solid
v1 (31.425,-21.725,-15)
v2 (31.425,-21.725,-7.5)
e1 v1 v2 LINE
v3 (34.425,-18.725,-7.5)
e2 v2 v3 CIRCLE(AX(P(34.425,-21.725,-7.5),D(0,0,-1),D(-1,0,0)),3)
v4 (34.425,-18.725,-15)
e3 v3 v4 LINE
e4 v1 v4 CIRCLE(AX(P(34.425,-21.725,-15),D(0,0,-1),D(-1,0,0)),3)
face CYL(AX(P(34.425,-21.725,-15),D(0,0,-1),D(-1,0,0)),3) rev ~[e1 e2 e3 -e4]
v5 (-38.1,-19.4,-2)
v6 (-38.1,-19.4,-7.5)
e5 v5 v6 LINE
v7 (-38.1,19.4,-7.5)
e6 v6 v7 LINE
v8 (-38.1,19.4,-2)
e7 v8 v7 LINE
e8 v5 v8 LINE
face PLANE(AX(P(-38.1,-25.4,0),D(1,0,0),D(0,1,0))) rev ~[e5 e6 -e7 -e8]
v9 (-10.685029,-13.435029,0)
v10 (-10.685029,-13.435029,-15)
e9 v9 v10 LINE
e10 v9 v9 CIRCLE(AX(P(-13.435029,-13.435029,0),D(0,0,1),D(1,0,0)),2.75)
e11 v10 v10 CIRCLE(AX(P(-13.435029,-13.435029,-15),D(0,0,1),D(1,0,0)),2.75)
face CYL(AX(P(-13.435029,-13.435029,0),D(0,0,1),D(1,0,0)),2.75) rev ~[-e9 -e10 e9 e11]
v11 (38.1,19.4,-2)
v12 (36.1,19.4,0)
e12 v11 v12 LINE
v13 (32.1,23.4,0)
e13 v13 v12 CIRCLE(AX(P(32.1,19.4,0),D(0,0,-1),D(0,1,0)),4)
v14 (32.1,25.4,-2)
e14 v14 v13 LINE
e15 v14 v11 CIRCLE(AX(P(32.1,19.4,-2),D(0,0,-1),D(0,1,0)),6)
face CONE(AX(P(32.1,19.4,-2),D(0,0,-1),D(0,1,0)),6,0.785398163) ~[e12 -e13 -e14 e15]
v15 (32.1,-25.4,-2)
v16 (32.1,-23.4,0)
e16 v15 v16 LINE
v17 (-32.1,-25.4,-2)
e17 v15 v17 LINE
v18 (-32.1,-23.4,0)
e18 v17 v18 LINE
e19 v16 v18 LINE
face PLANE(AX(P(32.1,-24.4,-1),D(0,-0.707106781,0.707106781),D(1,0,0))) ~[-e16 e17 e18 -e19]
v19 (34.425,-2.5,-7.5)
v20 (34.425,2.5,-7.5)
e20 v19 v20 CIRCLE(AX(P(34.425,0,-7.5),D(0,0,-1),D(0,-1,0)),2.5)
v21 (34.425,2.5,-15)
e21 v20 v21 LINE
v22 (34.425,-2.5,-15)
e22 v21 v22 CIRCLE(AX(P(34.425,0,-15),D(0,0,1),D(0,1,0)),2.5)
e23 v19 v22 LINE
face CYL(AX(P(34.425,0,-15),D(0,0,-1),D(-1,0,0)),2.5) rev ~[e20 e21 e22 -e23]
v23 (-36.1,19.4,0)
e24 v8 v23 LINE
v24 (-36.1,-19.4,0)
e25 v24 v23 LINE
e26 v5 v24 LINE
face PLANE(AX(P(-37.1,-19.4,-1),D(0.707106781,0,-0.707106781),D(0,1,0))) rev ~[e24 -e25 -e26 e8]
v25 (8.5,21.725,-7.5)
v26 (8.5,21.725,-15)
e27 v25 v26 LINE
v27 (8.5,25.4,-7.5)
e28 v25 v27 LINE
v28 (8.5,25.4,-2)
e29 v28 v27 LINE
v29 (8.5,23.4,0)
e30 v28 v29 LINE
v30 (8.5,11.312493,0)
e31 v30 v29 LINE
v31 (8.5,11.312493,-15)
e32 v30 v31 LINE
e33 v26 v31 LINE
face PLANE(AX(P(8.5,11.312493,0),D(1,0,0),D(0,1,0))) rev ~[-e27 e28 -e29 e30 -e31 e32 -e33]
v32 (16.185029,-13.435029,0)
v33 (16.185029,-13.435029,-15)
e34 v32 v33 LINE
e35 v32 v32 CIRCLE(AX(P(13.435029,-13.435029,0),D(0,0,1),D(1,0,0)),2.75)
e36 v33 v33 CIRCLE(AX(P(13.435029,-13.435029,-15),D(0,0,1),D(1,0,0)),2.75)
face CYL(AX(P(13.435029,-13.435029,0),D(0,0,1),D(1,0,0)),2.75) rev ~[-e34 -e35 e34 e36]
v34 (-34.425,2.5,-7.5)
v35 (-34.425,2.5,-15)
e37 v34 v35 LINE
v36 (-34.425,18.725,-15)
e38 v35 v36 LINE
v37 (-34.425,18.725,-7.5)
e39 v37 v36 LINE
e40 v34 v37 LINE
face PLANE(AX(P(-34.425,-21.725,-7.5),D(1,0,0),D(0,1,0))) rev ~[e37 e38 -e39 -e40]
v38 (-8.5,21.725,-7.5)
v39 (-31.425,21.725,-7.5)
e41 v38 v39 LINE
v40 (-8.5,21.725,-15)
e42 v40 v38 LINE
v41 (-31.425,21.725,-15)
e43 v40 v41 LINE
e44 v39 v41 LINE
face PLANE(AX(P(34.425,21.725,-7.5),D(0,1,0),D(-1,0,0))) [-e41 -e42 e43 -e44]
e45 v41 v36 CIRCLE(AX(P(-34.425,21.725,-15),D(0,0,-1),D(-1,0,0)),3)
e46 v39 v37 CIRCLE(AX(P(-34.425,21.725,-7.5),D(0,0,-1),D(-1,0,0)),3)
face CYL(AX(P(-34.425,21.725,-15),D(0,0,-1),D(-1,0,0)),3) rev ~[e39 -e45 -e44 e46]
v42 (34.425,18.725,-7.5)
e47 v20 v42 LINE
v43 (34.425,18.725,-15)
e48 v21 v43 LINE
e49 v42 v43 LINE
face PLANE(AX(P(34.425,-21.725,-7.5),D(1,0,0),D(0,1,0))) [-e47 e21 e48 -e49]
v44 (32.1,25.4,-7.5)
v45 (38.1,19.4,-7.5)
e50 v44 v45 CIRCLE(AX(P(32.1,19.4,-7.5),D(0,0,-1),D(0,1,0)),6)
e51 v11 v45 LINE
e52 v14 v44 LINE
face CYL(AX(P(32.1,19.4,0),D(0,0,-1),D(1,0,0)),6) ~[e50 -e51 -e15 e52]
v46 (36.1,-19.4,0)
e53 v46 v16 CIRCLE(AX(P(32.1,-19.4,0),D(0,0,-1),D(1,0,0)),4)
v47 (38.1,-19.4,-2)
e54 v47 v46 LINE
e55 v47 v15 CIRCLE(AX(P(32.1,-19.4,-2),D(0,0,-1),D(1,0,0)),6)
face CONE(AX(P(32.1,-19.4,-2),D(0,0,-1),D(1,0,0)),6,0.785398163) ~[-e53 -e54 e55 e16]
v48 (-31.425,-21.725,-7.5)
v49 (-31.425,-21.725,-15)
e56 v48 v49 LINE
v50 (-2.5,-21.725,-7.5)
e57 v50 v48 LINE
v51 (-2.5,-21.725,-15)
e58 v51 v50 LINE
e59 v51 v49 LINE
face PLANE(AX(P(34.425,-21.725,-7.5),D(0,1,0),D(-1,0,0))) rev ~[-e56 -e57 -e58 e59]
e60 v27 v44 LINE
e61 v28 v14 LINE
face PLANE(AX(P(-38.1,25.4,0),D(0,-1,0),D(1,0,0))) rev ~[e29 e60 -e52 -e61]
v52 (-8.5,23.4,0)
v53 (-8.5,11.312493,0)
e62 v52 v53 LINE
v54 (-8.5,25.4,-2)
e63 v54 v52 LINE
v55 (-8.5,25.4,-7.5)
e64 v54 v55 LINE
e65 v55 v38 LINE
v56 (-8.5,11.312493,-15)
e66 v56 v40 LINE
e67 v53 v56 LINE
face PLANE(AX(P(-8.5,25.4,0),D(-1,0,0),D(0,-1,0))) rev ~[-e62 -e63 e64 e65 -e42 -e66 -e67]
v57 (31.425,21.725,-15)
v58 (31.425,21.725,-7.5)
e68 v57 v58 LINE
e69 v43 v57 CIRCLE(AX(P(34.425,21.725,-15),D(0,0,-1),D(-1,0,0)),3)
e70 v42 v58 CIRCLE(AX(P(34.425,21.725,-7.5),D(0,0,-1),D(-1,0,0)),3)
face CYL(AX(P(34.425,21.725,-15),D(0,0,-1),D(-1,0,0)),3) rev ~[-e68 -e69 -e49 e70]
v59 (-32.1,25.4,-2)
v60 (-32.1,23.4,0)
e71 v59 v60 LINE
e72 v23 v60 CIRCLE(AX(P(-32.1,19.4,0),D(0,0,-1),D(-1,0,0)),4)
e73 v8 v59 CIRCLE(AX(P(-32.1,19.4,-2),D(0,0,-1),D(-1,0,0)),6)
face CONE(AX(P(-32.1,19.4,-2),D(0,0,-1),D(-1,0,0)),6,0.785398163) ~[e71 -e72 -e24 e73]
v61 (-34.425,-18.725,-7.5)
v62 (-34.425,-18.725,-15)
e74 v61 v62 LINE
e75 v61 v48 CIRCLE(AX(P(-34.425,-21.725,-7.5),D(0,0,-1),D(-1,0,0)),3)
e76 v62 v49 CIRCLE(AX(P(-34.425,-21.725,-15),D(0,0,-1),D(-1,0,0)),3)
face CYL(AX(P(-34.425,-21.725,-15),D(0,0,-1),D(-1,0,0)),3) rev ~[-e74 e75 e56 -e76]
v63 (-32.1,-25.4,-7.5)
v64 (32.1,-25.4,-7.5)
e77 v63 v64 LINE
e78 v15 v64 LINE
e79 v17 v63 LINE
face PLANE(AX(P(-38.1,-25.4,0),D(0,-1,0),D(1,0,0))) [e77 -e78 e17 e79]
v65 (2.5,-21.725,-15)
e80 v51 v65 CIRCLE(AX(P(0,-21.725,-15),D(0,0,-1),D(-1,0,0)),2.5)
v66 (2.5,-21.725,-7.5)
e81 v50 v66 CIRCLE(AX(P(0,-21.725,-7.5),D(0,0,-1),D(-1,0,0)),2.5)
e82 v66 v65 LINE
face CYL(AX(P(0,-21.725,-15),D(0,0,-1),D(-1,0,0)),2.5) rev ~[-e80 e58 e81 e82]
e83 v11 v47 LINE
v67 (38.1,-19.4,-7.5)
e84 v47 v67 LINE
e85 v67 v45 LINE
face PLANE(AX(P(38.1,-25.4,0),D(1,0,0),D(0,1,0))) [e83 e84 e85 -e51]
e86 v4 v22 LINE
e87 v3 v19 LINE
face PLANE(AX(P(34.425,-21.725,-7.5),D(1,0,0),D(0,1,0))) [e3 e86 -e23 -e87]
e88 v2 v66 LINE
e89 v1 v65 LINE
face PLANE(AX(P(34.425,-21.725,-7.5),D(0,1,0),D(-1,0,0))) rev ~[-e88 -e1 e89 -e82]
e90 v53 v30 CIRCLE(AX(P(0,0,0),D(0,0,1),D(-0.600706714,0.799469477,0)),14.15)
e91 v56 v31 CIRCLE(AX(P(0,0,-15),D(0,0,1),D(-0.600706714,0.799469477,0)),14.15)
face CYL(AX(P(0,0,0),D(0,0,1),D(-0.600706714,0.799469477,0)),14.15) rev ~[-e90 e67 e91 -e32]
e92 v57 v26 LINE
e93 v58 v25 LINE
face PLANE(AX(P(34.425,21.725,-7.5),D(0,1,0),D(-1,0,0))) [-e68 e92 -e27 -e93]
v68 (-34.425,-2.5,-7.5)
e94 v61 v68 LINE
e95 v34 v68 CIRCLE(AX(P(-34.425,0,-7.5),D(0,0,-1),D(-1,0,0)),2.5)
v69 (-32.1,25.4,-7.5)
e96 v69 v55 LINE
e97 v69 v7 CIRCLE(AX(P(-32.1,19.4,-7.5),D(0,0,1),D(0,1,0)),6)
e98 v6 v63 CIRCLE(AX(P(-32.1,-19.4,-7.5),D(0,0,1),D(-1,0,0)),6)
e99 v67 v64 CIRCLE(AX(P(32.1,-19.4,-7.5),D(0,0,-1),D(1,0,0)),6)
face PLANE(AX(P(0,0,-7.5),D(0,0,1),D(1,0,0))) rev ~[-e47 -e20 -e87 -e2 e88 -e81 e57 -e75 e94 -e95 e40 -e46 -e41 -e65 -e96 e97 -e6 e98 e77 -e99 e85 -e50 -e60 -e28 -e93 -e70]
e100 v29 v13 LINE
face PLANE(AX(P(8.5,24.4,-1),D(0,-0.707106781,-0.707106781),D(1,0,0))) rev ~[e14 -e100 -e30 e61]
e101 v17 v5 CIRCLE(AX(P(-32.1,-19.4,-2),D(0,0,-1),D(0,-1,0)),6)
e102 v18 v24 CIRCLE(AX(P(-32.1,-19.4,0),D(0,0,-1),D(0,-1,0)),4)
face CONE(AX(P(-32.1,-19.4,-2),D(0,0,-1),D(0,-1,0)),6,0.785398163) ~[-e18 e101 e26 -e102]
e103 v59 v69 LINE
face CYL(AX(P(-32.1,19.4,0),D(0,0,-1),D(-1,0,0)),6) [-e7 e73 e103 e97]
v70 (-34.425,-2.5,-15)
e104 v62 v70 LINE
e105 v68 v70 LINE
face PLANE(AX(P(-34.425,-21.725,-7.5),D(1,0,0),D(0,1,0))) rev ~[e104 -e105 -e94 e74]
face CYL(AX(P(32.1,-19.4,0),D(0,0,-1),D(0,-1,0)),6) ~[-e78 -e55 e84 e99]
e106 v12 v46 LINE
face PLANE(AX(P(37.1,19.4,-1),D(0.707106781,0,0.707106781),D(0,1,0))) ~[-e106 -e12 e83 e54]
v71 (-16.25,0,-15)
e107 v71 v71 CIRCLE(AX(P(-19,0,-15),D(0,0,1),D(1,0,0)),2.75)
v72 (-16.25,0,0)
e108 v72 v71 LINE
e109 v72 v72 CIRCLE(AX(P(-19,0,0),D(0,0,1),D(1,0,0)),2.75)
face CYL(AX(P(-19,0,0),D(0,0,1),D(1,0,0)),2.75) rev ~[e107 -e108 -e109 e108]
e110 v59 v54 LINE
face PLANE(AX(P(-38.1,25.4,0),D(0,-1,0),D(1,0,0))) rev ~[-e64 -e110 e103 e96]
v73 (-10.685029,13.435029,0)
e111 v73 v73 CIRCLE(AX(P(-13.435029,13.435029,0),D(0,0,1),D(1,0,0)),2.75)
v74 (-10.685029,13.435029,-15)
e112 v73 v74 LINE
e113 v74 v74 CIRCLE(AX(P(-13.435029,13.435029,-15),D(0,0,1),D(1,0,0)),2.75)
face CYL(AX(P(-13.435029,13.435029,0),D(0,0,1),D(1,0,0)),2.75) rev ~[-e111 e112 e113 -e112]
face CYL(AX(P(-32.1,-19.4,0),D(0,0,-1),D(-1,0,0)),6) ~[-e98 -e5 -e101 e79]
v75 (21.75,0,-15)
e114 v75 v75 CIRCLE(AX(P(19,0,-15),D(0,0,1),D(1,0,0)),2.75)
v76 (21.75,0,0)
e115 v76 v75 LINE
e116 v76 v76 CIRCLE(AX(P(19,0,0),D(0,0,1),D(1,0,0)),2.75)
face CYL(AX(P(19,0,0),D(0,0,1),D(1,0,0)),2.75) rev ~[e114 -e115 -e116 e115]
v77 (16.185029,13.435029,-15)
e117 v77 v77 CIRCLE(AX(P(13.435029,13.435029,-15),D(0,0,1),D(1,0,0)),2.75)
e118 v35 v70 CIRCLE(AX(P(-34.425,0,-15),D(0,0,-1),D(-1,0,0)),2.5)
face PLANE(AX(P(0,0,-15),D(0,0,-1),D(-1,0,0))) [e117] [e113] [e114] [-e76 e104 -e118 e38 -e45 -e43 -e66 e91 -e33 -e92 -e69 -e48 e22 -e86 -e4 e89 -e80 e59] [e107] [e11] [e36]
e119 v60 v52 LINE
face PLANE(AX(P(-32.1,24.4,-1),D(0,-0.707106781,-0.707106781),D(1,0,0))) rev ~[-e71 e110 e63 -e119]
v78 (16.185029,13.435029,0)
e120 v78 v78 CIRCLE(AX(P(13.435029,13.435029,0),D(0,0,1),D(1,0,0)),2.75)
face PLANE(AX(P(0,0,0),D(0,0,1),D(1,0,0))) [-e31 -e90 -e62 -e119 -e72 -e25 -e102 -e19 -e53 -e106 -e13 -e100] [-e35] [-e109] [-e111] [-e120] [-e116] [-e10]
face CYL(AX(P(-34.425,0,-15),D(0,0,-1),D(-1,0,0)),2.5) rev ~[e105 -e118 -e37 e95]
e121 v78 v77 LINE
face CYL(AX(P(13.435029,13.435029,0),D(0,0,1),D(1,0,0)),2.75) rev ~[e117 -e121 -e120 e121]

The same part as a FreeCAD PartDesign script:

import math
import FreeCAD as App
import Part
import Sketcher

V = App.Vector


def edges_at(feature, points):
    """Names of the edges that pass closest to the given points."""
    edges = feature.Shape.Edges
    near = lambda p: min(range(len(edges)), key=lambda i: edges[i].distToShape(Part.Vertex(*p))[0])
    return sorted({f"Edge{near(p) + 1}" for p in points})


def add_polygon(sketch, points):
    """Adds a closed chain of lines whose ends are joined by coincident constraints."""
    first, n = sketch.GeometryCount, len(points)
    for a, b in zip(points, points[1:] + points[:1]):
        sketch.addGeometry(Part.LineSegment(App.Vector(*a, 0), App.Vector(*b, 0)), False)
    for i in range(n):
        sketch.addConstraint(Sketcher.Constraint("Coincident", first + i, 2, first + (i + 1) % n, 1))

doc = App.newDocument("Part")
params = doc.addObject("Spreadsheet::Sheet", "Params")
for row, (alias, value) in enumerate([
    ("sketch1_width", "76.2 mm"),
    ("sketch1_height", "50.8 mm"),
    ("pad1_length", "7.5 mm"),
    ("sketch2_width", "68.85 mm"),
    ("sketch2_height", "43.45 mm"),
    ("pad2_length", "7.5 mm"),
    ("sketch3_diameter", "5.5 mm"),
    ("sketch3_width", "17 mm"),
    ("sketch3_radius", "14.15 mm"),
    ("fillet_radius", "6 mm"),
    ("sketch4_diameter", "6 mm"),
    ("sketch4_diameter2", "5 mm"),
    ("pocket2_length", "7.5 mm"),
    ("chamfer_size", "2 mm"),
], start=1):
    params.set(f"A{row}", alias)
    params.set(f"B{row}", "=" + value)
    params.setAlias(f"B{row}", alias)

body = doc.addObject("PartDesign::Body", "Body")

# Sketch on XY plane
sketch1 = body.newObject("Sketcher::SketchObject", "Sketch")
sketch1.AttachmentSupport = (doc.getObject("XY_Plane"), [""])
sketch1.MapMode = "FlatFace"
add_polygon(sketch1, [(-38, 25), (-38, -25), (38, -25), (38, 25)])  # lines 0-3
sketch1.addConstraint([
    Sketcher.Constraint("Vertical", 0),
    Sketcher.Constraint("Horizontal", 1),
    Sketcher.Constraint("Vertical", 2),
    Sketcher.Constraint("Horizontal", 3),
    Sketcher.Constraint("Symmetric", 0, 2, 2, 2, -1, 1),
    Sketcher.Constraint("DistanceX", 1, 1, 1, 2, 76.2),
    Sketcher.Constraint("DistanceY", 0, 2, 0, 1, 50.8),
])
sketch1.setExpression("Constraints[9]", "Params.sketch1_width")
sketch1.setExpression("Constraints[10]", "Params.sketch1_height")
pad1 = body.newObject("PartDesign::Pad", "Pad")
pad1.Profile = sketch1
pad1.setExpression("Length", "Params.pad1_length")
pad1.Reversed = True

# Sketch on XY plane
sketch2 = body.newObject("Sketcher::SketchObject", "Sketch001")
sketch2.AttachmentSupport = (doc.getObject("XY_Plane"), [""])
sketch2.MapMode = "FlatFace"
sketch2.AttachmentOffset = App.Placement(V(0, 0, -7.5), App.Rotation())
add_polygon(sketch2, [(34, 22), (34, -22), (-34, -22), (-34, 22)])  # lines 0-3
sketch2.addConstraint([
    Sketcher.Constraint("Vertical", 0),
    Sketcher.Constraint("Horizontal", 1),
    Sketcher.Constraint("Vertical", 2),
    Sketcher.Constraint("Horizontal", 3),
    Sketcher.Constraint("Symmetric", 0, 2, 2, 2, -1, 1),
    Sketcher.Constraint("DistanceX", 1, 2, 1, 1, 68.85),
    Sketcher.Constraint("DistanceY", 0, 2, 0, 1, 43.45),
])
sketch2.setExpression("Constraints[9]", "Params.sketch2_width")
sketch2.setExpression("Constraints[10]", "Params.sketch2_height")
pad2 = body.newObject("PartDesign::Pad", "Pad001")
pad2.Profile = sketch2
pad2.setExpression("Length", "Params.pad2_length")
pad2.Reversed = True

# Sketch on XY plane
sketch3 = body.newObject("Sketcher::SketchObject", "Sketch002")
sketch3.AttachmentSupport = (doc.getObject("XY_Plane"), [""])
sketch3.MapMode = "FlatFace"
sketch3.addGeometry([
    Part.Circle(V(-19, 0, 0), V(0, 0, 1), 2.8),  # 0
    Part.Circle(V(-13.4, 13.4, 0), V(0, 0, 1), 2.8),  # 1
    Part.Circle(V(13.4, 13.4, 0), V(0, 0, 1), 2.8),  # 2
    Part.Circle(V(19, 0, 0), V(0, 0, 1), 2.8),  # 3
    Part.Circle(V(13.4, -13.4, 0), V(0, 0, 1), 2.8),  # 4
    Part.Circle(V(-13.4, -13.4, 0), V(0, 0, 1), 2.8),  # 5
    Part.LineSegment(V(8.5, 11.3, 0), V(8.5, 25.4, 0)),  # 6
    Part.LineSegment(V(8.5, 25.4, 0), V(-8.5, 25.4, 0)),  # 7
    Part.LineSegment(V(-8.5, 25.4, 0), V(-8.5, 11.3, 0)),  # 8
    Part.ArcOfCircle(Part.Circle(V(0, 0, 0), V(0, 0, 1), 14.2), math.radians(127), math.radians(413)),  # 9
], False)
sketch3.addConstraint([
    Sketcher.Constraint("Coincident", 6, 2, 7, 1),
    Sketcher.Constraint("Coincident", 7, 2, 8, 1),
    Sketcher.Constraint("Coincident", 8, 2, 9, 1),
    Sketcher.Constraint("Coincident", 9, 2, 6, 1),
    Sketcher.Constraint("Vertical", 6),
    Sketcher.Constraint("Horizontal", 7),
    Sketcher.Constraint("Vertical", 8),
    Sketcher.Constraint("Coincident", 9, 3, -1, 1),
    Sketcher.Constraint("Equal", 0, 1),
    Sketcher.Constraint("Equal", 1, 2),
    Sketcher.Constraint("Equal", 2, 3),
    Sketcher.Constraint("Equal", 3, 4),
    Sketcher.Constraint("Equal", 4, 5),
    Sketcher.Constraint("Symmetric", 0, 3, 3, 3, -1, 1),
    Sketcher.Constraint("Symmetric", 1, 3, 4, 3, -1, 1),
    Sketcher.Constraint("Symmetric", 2, 3, 5, 3, -1, 1),
    Sketcher.Constraint("Symmetric", 1, 3, 2, 3, -2),
    Sketcher.Constraint("PointOnObject", 0, 3, -1),
    Sketcher.Constraint("Horizontal", 8, 2, 9, 2),
    Sketcher.Constraint("Diameter", 0, 5.5),
    Sketcher.Constraint("DistanceX", 7, 2, 7, 1, 17.0),
    Sketcher.Constraint("Radius", 9, 14.15),
    Sketcher.Constraint("DistanceX", 0, 3, -1, 1, 19.0),
    Sketcher.Constraint("DistanceY", -1, 1, 6, 2, 25.4),
    Sketcher.Constraint("DistanceX", 1, 3, -1, 1, 13.435029),
    Sketcher.Constraint("DistanceY", -1, 1, 1, 3, 13.435029),
])
sketch3.setExpression("Constraints[19]", "Params.sketch3_diameter")
sketch3.setExpression("Constraints[20]", "Params.sketch3_width")
sketch3.setExpression("Constraints[21]", "Params.sketch3_radius")
pocket1 = body.newObject("PartDesign::Pocket", "Pocket")
pocket1.Profile = sketch3
pocket1.Type = "ThroughAll"
doc.recompute()

fillet = body.newObject("PartDesign::Fillet", "Fillet")
fillet.Base = (pocket1, edges_at(pocket1, [
    (-38.1, 25.4, -3.75),
    (38.1, 25.4, -3.75),
    (38.1, -25.4, -3.75),
    (-38.1, -25.4, -3.75),
]))
fillet.setExpression("Radius", "Params.fillet_radius")

# Sketch on XY plane
sketch4 = body.newObject("Sketcher::SketchObject", "Sketch003")
sketch4.AttachmentSupport = (doc.getObject("XY_Plane"), [""])
sketch4.MapMode = "FlatFace"
sketch4.AttachmentOffset = App.Placement(V(0, 0, -15), App.Rotation())
sketch4.addGeometry([
    Part.Circle(V(34.4, 21.7, 0), V(0, 0, 1), 3),  # 0
    Part.Circle(V(34.4, -21.7, 0), V(0, 0, 1), 3),  # 1
    Part.Circle(V(34.4, 0, 0), V(0, 0, 1), 2.5),  # 2
    Part.Circle(V(0, -21.7, 0), V(0, 0, 1), 2.5),  # 3
    Part.Circle(V(-34.4, -21.7, 0), V(0, 0, 1), 3),  # 4
    Part.Circle(V(-34.4, 0, 0), V(0, 0, 1), 2.5),  # 5
    Part.Circle(V(-34.4, 21.7, 0), V(0, 0, 1), 3),  # 6
], False)
sketch4.addConstraint([
    Sketcher.Constraint("Equal", 0, 1),
    Sketcher.Constraint("Equal", 2, 3),
    Sketcher.Constraint("Equal", 1, 4),
    Sketcher.Constraint("Equal", 3, 5),
    Sketcher.Constraint("Equal", 4, 6),
    Sketcher.Constraint("Symmetric", 0, 3, 4, 3, -1, 1),
    Sketcher.Constraint("Symmetric", 2, 3, 5, 3, -1, 1),
    Sketcher.Constraint("Symmetric", 1, 3, 6, 3, -1, 1),
    Sketcher.Constraint("Symmetric", 1, 3, 4, 3, -2),
    Sketcher.Constraint("PointOnObject", 2, 3, -1),
    Sketcher.Constraint("PointOnObject", 3, 3, -2),
    Sketcher.Constraint("Horizontal", 1, 3, 3, 3),
    Sketcher.Constraint("Vertical", 1, 3, 2, 3),
    Sketcher.Constraint("Diameter", 0, 6.0),
    Sketcher.Constraint("Diameter", 2, 5.0),
    Sketcher.Constraint("DistanceY", 1, 3, 0, 3, 43.45),
    Sketcher.Constraint("DistanceX", 4, 3, 1, 3, 68.85),
])
sketch4.setExpression("Constraints[13]", "Params.sketch4_diameter")
sketch4.setExpression("Constraints[14]", "Params.sketch4_diameter2")
pocket2 = body.newObject("PartDesign::Pocket", "Pocket001")
pocket2.Profile = sketch4
pocket2.setExpression("Length", "Params.pocket2_length")
pocket2.Reversed = True
doc.recompute()

chamfer = body.newObject("PartDesign::Chamfer", "Chamfer")
chamfer.Base = (pocket2, edges_at(pocket2, [
    (-20.3, 25.4, 0),
    (0, -25.4, 0),
    (-38.1, 0, 0),
    (38.1, 0, 0),
    (20.3, 25.4, 0),
    (36.343, 23.643, 0),
    (-36.343, 23.643, 0),
    (-36.343, -23.643, 0),
    (36.343, -23.643, 0),
]))
chamfer.setExpression("Size", "Params.chamfer_size")

doc.recompute()
